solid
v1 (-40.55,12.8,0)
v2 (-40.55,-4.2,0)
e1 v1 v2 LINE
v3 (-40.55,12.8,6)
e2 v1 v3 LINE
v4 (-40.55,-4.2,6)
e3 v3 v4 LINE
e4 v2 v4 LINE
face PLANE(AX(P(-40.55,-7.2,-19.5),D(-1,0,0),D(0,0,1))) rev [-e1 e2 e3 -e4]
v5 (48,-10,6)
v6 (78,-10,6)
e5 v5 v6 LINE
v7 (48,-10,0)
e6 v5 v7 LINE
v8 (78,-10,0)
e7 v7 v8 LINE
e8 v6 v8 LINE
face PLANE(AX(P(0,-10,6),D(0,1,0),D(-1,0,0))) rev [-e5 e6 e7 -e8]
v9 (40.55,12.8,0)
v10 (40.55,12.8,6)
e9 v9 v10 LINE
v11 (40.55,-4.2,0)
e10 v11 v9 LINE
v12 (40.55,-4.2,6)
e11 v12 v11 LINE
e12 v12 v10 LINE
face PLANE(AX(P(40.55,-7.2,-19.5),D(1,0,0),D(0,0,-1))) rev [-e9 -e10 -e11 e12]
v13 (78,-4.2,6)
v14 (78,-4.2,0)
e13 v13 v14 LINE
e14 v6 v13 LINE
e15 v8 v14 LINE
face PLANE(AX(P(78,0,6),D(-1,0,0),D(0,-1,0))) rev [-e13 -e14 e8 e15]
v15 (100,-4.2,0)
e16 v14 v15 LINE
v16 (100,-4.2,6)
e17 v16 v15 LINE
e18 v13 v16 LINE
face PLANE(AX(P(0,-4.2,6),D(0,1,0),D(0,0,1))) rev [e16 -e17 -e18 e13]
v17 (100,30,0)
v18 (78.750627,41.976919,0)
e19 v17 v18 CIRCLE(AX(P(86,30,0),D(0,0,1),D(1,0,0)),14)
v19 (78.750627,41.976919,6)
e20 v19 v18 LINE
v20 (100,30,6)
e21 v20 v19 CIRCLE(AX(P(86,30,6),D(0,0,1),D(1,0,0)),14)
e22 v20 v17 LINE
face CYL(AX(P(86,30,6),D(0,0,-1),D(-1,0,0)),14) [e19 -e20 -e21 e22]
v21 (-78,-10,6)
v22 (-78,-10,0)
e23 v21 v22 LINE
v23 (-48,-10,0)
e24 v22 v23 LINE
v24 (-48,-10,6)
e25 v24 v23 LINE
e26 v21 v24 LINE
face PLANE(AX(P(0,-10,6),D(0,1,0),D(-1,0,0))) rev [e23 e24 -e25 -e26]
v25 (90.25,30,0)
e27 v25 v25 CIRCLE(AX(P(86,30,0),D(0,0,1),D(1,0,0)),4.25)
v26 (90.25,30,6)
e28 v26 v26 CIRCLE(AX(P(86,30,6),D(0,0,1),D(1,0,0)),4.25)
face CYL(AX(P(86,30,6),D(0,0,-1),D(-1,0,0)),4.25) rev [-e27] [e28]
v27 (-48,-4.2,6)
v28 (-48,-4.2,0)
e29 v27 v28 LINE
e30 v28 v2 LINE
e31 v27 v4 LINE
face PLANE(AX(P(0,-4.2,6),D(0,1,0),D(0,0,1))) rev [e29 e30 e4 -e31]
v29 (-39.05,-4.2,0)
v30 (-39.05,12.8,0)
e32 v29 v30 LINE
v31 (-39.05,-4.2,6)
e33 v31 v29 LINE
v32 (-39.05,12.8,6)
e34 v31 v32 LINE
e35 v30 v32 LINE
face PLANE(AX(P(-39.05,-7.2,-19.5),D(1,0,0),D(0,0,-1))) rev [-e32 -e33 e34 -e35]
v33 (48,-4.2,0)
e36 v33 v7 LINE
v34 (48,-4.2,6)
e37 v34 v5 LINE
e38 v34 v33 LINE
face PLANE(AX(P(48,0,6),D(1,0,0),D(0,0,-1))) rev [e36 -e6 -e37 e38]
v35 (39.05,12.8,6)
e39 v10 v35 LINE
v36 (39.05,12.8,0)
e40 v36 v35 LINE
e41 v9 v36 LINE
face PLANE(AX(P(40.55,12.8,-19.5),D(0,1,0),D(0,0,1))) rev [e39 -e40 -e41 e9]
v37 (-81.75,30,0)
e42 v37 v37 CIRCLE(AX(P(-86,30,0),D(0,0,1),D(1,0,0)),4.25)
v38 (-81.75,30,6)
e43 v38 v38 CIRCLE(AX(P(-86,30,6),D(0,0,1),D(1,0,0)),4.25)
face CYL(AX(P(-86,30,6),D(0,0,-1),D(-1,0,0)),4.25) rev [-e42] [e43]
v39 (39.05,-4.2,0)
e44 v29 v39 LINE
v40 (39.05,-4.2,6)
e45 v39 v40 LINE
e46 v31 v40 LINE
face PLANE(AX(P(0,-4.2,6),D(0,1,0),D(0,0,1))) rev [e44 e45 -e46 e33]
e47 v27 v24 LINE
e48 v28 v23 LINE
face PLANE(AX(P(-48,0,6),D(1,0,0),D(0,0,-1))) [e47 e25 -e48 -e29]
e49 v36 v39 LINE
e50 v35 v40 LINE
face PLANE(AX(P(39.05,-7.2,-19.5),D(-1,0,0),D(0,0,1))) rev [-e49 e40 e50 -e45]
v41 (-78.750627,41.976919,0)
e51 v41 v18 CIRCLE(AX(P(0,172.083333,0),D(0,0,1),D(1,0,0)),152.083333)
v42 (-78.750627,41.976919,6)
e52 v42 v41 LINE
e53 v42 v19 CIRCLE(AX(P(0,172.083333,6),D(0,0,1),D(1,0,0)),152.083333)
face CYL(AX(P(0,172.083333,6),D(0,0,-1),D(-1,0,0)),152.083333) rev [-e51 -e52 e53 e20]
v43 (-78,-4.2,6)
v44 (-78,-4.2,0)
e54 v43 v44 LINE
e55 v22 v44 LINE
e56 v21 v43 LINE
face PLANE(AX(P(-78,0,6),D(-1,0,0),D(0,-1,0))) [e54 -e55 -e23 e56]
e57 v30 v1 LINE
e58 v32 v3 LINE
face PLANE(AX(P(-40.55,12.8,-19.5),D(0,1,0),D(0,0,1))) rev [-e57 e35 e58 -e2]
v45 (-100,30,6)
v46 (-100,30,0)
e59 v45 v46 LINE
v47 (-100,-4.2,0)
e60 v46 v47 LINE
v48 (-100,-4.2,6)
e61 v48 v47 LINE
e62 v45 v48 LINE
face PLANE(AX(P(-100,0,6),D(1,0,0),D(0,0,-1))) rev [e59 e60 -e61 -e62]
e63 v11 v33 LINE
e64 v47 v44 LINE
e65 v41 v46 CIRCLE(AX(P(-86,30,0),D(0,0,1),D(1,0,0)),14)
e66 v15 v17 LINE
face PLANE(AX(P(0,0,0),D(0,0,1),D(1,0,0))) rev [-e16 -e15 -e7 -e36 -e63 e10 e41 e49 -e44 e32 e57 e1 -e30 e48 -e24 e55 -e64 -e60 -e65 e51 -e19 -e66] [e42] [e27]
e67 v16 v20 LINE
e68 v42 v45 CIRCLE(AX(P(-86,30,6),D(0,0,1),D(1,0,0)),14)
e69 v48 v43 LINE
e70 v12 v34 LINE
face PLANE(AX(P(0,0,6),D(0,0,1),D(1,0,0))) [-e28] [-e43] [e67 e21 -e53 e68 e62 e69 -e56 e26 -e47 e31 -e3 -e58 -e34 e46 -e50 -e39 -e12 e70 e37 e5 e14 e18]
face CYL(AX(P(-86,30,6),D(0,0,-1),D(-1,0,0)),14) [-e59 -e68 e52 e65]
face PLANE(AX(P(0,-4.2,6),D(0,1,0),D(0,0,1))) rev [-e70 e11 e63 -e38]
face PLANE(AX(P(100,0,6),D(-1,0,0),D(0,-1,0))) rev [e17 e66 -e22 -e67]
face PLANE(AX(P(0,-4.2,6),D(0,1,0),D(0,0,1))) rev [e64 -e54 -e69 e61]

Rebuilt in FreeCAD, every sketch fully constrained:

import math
import FreeCAD as App
import Part
import Sketcher
from FreeCAD import Vector


def add_polygon(sketch, points):
    """Adds a closed chain of lines whose ends are joined by coincident constraints."""
    first, n = sketch.GeometryCount, len(points)
    for a, b in zip(points, points[1:] + points[:1]):
        sketch.addGeometry(Part.LineSegment(App.Vector(*a, 0), App.Vector(*b, 0)), False)
    for i in range(n):
        sketch.addConstraint(Sketcher.Constraint("Coincident", first + i, 2, first + (i + 1) % n, 1))

doc = App.newDocument("Part")
body = doc.addObject("PartDesign::Body", "Body")

# Sketch on XY plane
sketch1 = doc.addObject("Sketcher::SketchObject", "Sketch")
body.addObject(sketch1)
sketch1.AttachmentSupport = (doc.XY_Plane, [""])
sketch1.MapMode = "FlatFace"
sketch1.addGeometry([
    Part.ArcOfCircle(Part.Circle(Vector(-86, 30, 0), Vector(0, 0, 1), 14), math.radians(59), math.radians(180)),  # 0
    Part.LineSegment(Vector(-100, 30, 0), Vector(-100, -4.2, 0)),  # 1
    Part.LineSegment(Vector(-100, -4.2, 0), Vector(-78, -4.2, 0)),  # 2
    Part.LineSegment(Vector(-78, -4.2, 0), Vector(-78, -10, 0)),  # 3
    Part.LineSegment(Vector(-78, -10, 0), Vector(-48, -10, 0)),  # 4
    Part.LineSegment(Vector(-48, -10, 0), Vector(-48, -4.2, 0)),  # 5
    Part.LineSegment(Vector(-48, -4.2, 0), Vector(48, -4.2, 0)),  # 6
    Part.LineSegment(Vector(48, -4.2, 0), Vector(48, -10, 0)),  # 7
    Part.LineSegment(Vector(48, -10, 0), Vector(78, -10, 0)),  # 8
    Part.LineSegment(Vector(78, -10, 0), Vector(78, -4.2, 0)),  # 9
    Part.LineSegment(Vector(78, -4.2, 0), Vector(100, -4.2, 0)),  # 10
    Part.LineSegment(Vector(100, -4.2, 0), Vector(100, 30, 0)),  # 11
    Part.ArcOfCircle(Part.Circle(Vector(86, 30, 0), Vector(0, 0, 1), 14), math.radians(0), math.radians(121)),  # 12
    Part.ArcOfCircle(Part.Circle(Vector(0, 172.1, 0), Vector(0, 0, 1), 152.1), math.radians(-121), math.radians(-59)),  # 13
    Part.Circle(Vector(-86, 30, 0), Vector(0, 0, 1), 4.2),  # 14
    Part.Circle(Vector(86, 30, 0), Vector(0, 0, 1), 4.2),  # 15
], False)
sketch1.addConstraint([
    Sketcher.Constraint("Tangent", 0, 2, 1, 1),
    Sketcher.Constraint("Coincident", 1, 2, 2, 1),
    Sketcher.Constraint("Coincident", 2, 2, 3, 1),
    Sketcher.Constraint("Coincident", 3, 2, 4, 1),
    Sketcher.Constraint("Coincident", 4, 2, 5, 1),
    Sketcher.Constraint("Coincident", 5, 2, 6, 1),
    Sketcher.Constraint("Coincident", 6, 2, 7, 1),
    Sketcher.Constraint("Coincident", 7, 2, 8, 1),
    Sketcher.Constraint("Coincident", 8, 2, 9, 1),
    Sketcher.Constraint("Coincident", 9, 2, 10, 1),
    Sketcher.Constraint("Coincident", 10, 2, 11, 1),
    Sketcher.Constraint("Tangent", 11, 2, 12, 1),
    Sketcher.Constraint("Tangent", 12, 2, 13, 2),
    Sketcher.Constraint("Tangent", 13, 1, 0, 1),
    Sketcher.Constraint("Vertical", 1),
    Sketcher.Constraint("Horizontal", 2),
    Sketcher.Constraint("Vertical", 3),
    Sketcher.Constraint("Horizontal", 4),
    Sketcher.Constraint("Vertical", 5),
    Sketcher.Constraint("Horizontal", 6),
    Sketcher.Constraint("Vertical", 7),
    Sketcher.Constraint("Horizontal", 8),
    Sketcher.Constraint("Vertical", 9),
    Sketcher.Constraint("Horizontal", 10),
    Sketcher.Constraint("Vertical", 11),
    Sketcher.Constraint("Coincident", 14, 3, 0, 3),
    Sketcher.Constraint("Coincident", 15, 3, 12, 3),
    Sketcher.Constraint("Equal", 0, 12),
    Sketcher.Constraint("Equal", 14, 15),
    Sketcher.Constraint("Symmetric", 0, 3, 12, 3, -2),
    Sketcher.Constraint("Symmetric", 4, 2, 7, 2, -2),
    Sketcher.Constraint("Symmetric", 2, 2, 9, 2, -2),
    Sketcher.Constraint("Horizontal", 2, 2, 5, 2),
    Sketcher.Constraint("Radius", 0, 14.0),
    Sketcher.Constraint("Diameter", 14, 8.5),
    Sketcher.Constraint("DistanceX", 2, 1, 2, 2, 22.0),
    Sketcher.Constraint("DistanceX", 4, 1, 4, 2, 30.0),
    Sketcher.Constraint("DistanceX", 6, 1, 6, 2, 96.0),
    Sketcher.Constraint("DistanceY", 1, 2, 1, 1, 34.2),
    Sketcher.Constraint("DistanceY", 3, 2, 3, 1, 5.8),
    Sketcher.Constraint("DistanceY", -1, 1, 0, 3, 30.0),
    Sketcher.Constraint("Radius", 13, 152.083333),
])
pad1 = doc.addObject("PartDesign::Pad", "Pad")
body.addObject(pad1)
pad1.Profile = sketch1
pad1.Length = 6

# Sketch on XY plane
sketch2 = doc.addObject("Sketcher::SketchObject", "Sketch001")
body.addObject(sketch2)
sketch2.AttachmentSupport = (doc.XY_Plane, [""])
sketch2.MapMode = "FlatFace"
sketch2.AttachmentOffset = App.Placement(Vector(0, 0, 6), App.Rotation())
add_polygon(sketch2, [(-40.5, 12.8), (-40.5, -7.2), (-39, -7.2), (-39, 12.8)])  # lines 0-3
add_polygon(sketch2, [(39, 12.8), (39, -7.2), (40.5, -7.2), (40.5, 12.8)])  # lines 4-7
sketch2.addConstraint([
    Sketcher.Constraint("Vertical", 0),
    Sketcher.Constraint("Horizontal", 1),
    Sketcher.Constraint("Vertical", 2),
    Sketcher.Constraint("Horizontal", 3),
    Sketcher.Constraint("Vertical", 4),
    Sketcher.Constraint("Horizontal", 5),
    Sketcher.Constraint("Vertical", 6),
    Sketcher.Constraint("Horizontal", 7),
    Sketcher.Constraint("Symmetric", 1, 2, 4, 2, -2),
    Sketcher.Constraint("Symmetric", 3, 2, 6, 2, -2),
    Sketcher.Constraint("DistanceY", 0, 2, 0, 1, 20.0),
    Sketcher.Constraint("DistanceX", 1, 1, 1, 2, 1.5),
    Sketcher.Constraint("DistanceY", 0, 2, -1, 1, 7.2),
    Sketcher.Constraint("DistanceX", 1, 2, 4, 2, 78.1),
])
pocket1 = doc.addObject("PartDesign::Pocket", "Pocket")
body.addObject(pocket1)
pocket1.Profile = sketch2
pocket1.Length = 25.5

doc.recompute()
